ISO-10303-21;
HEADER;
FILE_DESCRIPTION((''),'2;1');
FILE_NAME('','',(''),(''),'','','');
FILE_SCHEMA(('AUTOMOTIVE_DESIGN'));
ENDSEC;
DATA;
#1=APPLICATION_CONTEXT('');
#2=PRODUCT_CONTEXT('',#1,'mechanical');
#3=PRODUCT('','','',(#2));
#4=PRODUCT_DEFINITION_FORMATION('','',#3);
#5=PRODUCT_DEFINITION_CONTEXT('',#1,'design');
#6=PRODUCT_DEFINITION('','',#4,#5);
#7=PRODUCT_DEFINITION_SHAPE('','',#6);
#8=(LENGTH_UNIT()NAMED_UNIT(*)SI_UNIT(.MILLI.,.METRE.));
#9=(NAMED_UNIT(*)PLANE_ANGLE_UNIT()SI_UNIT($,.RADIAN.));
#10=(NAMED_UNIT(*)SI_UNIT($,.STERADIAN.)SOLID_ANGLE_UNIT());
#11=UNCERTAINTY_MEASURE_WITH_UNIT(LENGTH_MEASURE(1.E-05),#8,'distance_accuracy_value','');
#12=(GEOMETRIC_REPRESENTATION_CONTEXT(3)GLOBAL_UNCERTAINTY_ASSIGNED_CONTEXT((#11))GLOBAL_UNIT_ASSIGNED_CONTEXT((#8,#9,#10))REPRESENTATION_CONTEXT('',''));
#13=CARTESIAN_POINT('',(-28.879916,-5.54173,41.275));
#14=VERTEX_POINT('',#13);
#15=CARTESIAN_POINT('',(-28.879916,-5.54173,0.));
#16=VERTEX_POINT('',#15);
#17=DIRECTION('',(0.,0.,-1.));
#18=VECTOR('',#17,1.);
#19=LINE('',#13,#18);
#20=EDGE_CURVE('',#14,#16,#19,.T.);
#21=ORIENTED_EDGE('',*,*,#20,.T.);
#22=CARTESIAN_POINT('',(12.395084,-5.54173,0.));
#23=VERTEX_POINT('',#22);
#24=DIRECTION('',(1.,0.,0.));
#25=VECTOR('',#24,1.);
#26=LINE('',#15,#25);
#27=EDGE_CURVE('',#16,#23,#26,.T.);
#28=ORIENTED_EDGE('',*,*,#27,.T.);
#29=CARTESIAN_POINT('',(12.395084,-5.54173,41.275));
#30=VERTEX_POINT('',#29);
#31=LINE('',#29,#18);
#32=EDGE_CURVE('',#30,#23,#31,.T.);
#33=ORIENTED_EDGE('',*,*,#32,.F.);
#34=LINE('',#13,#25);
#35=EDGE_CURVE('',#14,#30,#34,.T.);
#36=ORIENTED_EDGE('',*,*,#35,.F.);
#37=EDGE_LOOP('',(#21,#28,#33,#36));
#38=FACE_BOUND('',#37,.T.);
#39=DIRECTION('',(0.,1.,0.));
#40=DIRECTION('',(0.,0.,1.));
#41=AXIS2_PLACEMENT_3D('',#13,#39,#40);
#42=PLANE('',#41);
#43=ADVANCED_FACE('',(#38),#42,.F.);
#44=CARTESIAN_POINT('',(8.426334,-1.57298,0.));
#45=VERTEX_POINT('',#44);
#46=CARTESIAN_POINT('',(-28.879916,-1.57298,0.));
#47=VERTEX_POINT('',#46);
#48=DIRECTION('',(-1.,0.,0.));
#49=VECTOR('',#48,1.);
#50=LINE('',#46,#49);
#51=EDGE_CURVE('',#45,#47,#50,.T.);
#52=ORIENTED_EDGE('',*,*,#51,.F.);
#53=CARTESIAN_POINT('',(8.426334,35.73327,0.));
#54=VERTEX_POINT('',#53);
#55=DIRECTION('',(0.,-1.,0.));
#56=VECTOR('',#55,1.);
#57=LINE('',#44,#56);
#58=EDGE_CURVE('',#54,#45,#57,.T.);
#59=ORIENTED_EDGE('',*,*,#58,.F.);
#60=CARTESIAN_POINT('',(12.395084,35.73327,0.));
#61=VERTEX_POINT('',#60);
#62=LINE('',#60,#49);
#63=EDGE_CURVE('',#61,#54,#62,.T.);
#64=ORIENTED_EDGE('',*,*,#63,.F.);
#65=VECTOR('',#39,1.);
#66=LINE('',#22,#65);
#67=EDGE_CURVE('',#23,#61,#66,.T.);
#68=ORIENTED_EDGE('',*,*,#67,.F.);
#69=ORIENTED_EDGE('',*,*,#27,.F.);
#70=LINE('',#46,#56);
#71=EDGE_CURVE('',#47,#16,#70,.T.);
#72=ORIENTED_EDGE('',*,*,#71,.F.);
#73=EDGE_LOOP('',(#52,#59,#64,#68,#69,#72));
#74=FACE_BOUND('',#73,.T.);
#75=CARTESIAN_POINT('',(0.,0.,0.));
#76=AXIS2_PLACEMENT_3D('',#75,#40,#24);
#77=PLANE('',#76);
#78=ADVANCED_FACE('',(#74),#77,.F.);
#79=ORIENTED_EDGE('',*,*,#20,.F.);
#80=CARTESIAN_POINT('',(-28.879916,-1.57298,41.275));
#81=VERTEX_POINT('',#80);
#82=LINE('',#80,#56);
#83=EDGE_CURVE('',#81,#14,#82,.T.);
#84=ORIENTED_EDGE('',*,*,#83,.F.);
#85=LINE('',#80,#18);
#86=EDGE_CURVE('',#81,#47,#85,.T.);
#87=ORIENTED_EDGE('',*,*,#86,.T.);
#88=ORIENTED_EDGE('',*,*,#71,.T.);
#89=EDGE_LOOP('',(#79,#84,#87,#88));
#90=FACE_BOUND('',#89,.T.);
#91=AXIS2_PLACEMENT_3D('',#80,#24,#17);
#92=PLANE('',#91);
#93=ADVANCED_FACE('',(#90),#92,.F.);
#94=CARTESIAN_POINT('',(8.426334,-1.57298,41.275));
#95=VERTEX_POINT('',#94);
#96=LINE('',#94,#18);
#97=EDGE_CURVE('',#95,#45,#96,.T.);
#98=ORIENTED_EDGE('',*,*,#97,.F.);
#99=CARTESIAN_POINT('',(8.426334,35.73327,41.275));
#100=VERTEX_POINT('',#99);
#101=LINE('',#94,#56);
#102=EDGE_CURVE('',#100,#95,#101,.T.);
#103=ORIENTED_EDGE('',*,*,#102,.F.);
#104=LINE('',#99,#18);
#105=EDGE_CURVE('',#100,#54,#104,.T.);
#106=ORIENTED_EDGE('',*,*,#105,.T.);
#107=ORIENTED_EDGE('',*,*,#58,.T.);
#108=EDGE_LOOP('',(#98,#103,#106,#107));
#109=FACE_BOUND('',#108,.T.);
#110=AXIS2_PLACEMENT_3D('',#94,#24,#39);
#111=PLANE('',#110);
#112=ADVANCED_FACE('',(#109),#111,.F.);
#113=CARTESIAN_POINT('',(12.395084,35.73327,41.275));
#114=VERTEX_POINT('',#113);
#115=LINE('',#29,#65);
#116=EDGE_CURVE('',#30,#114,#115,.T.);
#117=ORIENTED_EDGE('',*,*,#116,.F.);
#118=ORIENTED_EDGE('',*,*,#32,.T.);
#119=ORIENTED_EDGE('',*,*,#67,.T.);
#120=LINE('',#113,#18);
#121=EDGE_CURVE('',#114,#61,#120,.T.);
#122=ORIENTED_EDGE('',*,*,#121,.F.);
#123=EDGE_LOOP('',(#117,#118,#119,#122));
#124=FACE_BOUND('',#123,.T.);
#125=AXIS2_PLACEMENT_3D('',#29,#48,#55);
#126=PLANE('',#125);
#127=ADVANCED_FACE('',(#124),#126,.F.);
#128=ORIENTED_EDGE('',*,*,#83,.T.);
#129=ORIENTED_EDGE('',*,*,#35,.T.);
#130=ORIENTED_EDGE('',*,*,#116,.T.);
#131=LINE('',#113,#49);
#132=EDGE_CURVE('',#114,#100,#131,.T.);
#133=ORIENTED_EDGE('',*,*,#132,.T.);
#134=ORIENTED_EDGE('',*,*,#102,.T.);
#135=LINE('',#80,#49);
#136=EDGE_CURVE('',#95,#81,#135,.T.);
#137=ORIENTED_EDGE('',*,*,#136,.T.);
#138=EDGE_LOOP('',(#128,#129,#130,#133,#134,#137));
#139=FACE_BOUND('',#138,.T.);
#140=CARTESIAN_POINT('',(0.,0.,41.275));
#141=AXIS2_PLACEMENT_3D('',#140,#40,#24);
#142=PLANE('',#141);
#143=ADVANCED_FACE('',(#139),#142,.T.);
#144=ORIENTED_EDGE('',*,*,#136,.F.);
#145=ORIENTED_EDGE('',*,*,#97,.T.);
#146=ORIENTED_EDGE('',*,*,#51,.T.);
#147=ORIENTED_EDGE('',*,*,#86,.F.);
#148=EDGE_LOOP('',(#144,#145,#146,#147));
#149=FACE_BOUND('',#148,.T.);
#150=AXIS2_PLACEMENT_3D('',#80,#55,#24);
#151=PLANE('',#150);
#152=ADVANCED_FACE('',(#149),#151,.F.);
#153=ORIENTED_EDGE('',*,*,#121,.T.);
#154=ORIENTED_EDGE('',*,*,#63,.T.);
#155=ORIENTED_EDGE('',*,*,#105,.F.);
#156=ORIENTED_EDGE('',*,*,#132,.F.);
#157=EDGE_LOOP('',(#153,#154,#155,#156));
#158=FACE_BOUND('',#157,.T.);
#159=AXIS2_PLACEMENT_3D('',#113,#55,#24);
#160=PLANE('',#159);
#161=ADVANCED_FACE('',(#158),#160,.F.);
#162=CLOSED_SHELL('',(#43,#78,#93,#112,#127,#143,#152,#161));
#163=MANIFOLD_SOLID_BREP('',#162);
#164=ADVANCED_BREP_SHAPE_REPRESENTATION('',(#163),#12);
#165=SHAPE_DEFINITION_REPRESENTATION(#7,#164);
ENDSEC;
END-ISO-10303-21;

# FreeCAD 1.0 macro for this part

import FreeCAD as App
import Part
import Sketcher

V = App.Vector
Q = App.Units.Quantity

doc = App.newDocument("Part")
body = doc.addObject("PartDesign::Body", "Body")

# Sketch on XY plane
sketch1 = body.newObject("Sketcher::SketchObject", "Sketch")
sketch1.AttachmentSupport = (doc.getObject("XY_Plane"), [""])
sketch1.MapMode = "FlatFace"
sketch1.addGeometry([
    Part.LineSegment(V(-28.9, -5.5, 0), V(12.4, -5.5, 0)),  # 0
    Part.LineSegment(V(12.4, -5.5, 0), V(12.4, 35.7, 0)),  # 1
    Part.LineSegment(V(12.4, 35.7, 0), V(8.4, 35.7, 0)),  # 2
    Part.LineSegment(V(8.4, 35.7, 0), V(8.4, -1.6, 0)),  # 3
    Part.LineSegment(V(8.4, -1.6, 0), V(-28.9, -1.6, 0)),  # 4
    Part.LineSegment(V(-28.9, -1.6, 0), V(-28.9, -5.5, 0)),  # 5
], False)
sketch1.addConstraint([
    Sketcher.Constraint("Coincident", 0, 2, 1, 1),
    Sketcher.Constraint("Coincident", 1, 2, 2, 1),
    Sketcher.Constraint("Coincident", 2, 2, 3, 1),
    Sketcher.Constraint("Coincident", 3, 2, 4, 1),
    Sketcher.Constraint("Coincident", 4, 2, 5, 1),
    Sketcher.Constraint("Coincident", 5, 2, 0, 1),
    Sketcher.Constraint("Horizontal", 0),
    Sketcher.Constraint("Vertical", 1),
    Sketcher.Constraint("Horizontal", 2),
    Sketcher.Constraint("Vertical", 3),
    Sketcher.Constraint("Horizontal", 4),
    Sketcher.Constraint("Vertical", 5),
    Sketcher.Constraint("Equal", 0, 1),
    Sketcher.Constraint("Equal", 4, 3),
    Sketcher.Constraint("DistanceX", 0, 1, 0, 2, Q("1.625 in")),
    Sketcher.Constraint("DistanceX", 2, 2, 2, 1, Q("0.15625 in")),
    Sketcher.Constraint("DistanceY", 0, 2, -1, 1, 5.54173),
    Sketcher.Constraint("DistanceX", -1, 1, 0, 2, 12.395084),
])
pad1 = body.newObject("PartDesign::Pad", "Pad")
pad1.Profile = sketch1
pad1.Length = Q("1.625 in")

doc.recompute()
